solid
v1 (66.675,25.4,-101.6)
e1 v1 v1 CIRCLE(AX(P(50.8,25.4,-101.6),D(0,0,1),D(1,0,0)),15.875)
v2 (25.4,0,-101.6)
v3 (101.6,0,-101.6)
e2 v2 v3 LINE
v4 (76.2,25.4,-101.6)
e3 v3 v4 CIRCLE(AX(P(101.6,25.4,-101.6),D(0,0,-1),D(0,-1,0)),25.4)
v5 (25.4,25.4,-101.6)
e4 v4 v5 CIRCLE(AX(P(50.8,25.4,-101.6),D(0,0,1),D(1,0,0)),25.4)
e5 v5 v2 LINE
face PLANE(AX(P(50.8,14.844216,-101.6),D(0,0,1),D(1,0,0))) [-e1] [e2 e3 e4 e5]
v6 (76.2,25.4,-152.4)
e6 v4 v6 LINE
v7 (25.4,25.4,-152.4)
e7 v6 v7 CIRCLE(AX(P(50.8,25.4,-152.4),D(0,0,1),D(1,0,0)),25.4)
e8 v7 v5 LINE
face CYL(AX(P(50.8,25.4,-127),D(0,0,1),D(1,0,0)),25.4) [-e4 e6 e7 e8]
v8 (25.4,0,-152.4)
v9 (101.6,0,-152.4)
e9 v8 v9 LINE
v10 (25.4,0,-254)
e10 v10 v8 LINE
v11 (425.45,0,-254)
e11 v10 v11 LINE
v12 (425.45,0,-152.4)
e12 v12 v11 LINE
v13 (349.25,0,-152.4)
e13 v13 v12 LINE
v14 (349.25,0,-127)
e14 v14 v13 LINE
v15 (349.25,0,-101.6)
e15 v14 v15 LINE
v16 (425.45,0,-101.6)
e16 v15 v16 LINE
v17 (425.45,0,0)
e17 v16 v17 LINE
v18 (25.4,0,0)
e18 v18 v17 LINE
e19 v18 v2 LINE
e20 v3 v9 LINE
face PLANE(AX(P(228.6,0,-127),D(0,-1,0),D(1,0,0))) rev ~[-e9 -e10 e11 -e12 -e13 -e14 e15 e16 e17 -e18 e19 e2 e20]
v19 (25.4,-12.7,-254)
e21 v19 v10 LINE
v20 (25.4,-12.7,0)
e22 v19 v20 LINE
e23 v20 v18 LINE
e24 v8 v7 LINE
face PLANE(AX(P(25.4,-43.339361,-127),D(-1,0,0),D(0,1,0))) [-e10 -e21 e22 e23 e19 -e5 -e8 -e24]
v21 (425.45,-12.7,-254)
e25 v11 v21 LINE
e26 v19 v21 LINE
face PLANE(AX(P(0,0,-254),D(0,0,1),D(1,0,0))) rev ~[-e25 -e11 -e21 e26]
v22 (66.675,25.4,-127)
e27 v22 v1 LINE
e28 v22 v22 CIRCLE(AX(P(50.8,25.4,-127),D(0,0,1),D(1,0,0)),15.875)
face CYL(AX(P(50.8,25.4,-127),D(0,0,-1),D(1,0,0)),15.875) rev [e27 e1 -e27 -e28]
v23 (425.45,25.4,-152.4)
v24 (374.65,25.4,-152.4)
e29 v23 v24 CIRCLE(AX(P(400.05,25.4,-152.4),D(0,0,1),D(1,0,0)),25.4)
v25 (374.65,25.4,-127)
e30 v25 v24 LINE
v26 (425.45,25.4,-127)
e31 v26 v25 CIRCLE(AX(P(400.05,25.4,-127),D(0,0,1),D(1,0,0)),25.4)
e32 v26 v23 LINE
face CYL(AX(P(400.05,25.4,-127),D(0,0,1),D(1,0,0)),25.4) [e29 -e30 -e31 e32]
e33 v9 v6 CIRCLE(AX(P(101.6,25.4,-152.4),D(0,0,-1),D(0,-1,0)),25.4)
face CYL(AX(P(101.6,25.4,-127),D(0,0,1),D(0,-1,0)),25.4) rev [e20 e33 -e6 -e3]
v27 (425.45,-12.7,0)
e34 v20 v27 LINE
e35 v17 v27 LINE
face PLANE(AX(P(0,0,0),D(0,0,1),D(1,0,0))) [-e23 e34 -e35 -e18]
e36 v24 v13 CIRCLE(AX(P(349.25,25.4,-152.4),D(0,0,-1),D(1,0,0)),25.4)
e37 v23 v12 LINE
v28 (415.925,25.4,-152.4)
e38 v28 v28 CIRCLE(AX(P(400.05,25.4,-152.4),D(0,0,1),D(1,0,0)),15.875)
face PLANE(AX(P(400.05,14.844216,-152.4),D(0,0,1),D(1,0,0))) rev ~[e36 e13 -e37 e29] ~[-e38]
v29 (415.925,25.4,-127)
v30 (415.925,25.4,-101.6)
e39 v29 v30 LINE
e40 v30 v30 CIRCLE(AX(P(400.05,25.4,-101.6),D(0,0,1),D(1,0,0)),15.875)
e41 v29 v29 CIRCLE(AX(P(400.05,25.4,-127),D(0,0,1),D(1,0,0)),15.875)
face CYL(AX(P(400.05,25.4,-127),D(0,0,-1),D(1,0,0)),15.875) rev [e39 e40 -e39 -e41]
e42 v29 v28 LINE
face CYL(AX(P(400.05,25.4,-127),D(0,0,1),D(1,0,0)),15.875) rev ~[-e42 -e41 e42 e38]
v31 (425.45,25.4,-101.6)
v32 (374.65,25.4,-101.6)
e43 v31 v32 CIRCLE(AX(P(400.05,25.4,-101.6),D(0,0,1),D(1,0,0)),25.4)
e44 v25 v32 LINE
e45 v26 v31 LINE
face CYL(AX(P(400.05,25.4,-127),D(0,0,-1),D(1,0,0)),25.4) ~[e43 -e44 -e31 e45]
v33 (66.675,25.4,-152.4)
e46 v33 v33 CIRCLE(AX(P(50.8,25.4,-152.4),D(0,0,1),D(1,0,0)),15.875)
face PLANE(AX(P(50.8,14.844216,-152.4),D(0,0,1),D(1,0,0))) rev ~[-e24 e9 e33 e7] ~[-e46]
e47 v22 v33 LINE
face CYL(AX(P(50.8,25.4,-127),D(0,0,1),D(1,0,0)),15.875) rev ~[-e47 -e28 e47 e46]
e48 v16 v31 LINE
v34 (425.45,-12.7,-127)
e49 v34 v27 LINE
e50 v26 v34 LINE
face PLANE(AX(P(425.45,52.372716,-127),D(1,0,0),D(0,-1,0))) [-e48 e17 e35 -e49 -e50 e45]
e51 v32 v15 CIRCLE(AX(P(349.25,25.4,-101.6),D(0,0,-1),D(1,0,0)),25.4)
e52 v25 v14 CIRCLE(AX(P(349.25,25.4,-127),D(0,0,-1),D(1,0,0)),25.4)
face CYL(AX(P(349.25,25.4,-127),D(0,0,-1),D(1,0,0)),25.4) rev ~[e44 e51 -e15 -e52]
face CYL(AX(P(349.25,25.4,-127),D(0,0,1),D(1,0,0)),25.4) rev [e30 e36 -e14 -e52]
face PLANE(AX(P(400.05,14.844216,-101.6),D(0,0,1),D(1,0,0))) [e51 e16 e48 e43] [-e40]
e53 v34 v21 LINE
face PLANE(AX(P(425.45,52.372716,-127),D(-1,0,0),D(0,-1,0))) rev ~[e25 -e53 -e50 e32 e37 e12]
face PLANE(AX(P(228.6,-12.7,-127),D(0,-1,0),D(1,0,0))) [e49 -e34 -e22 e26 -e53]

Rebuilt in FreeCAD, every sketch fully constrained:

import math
import FreeCAD as App
import Part
import Sketcher
from FreeCAD import Vector
Q = App.Units.Quantity


def add_polygon(sketch, points):
    """Adds a closed chain of lines whose ends are joined by coincident constraints."""
    first, n = sketch.GeometryCount, len(points)
    for a, b in zip(points, points[1:] + points[:1]):
        sketch.addGeometry(Part.LineSegment(App.Vector(*a, 0), App.Vector(*b, 0)), False)
    for i in range(n):
        sketch.addConstraint(Sketcher.Constraint("Coincident", first + i, 2, first + (i + 1) % n, 1))

doc = App.newDocument("Part")
params = doc.addObject("Spreadsheet::Sheet", "Params")
for row, (alias, value) in enumerate([
    ("sketch1_width", "18 in"),
    ("sketch1_height", "10 in"),
    ("pad1_length", "0.5 in"),
    ("sketch2_radius", "1 in"),
    ("sketch2_diameter", "1.25 in"),
    ("pad2_length", "1 in"),
    ("pad2_length2", "1 in"),
], start=1):
    params.set(f"A{row}", alias)
    params.set(f"B{row}", "=" + value)
    params.setAlias(f"B{row}", alias)

body = doc.addObject("PartDesign::Body", "Body")

sketch1 = doc.addObject("Sketcher::SketchObject", "Sketch")
body.addObject(sketch1)
sketch1.AttachmentSupport = (doc.XZ_Plane, [""])
sketch1.MapMode = "FlatFace"
add_polygon(sketch1, [(0, 0), (0, -254), (457.2, -254), (457.2, 0)])
sketch1.addConstraint([
    Sketcher.Constraint("Vertical", 0),
    Sketcher.Constraint("Horizontal", 1),
    Sketcher.Constraint("Vertical", 2),
    Sketcher.Constraint("Horizontal", 3),
    Sketcher.Constraint("Coincident", 3, 2, -1, 1),
    Sketcher.Constraint("DistanceX", 1, 1, 1, 2, Q("18 in")),
    Sketcher.Constraint("DistanceY", 0, 2, 0, 1, Q("10 in")),
])
sketch1.setExpression("Constraints[9]", "Params.sketch1_width")
sketch1.setExpression("Constraints[10]", "Params.sketch1_height")
pad1 = doc.addObject("PartDesign::Pad", "Pad")
body.addObject(pad1)
pad1.Profile = sketch1
pad1.setExpression("Length", "Params.pad1_length")

sketch2 = doc.addObject("Sketcher::SketchObject", "Sketch001")
body.addObject(sketch2)
sketch2.AttachmentSupport = (doc.XY_Plane, [""])
sketch2.MapMode = "FlatFace"
sketch2.AttachmentOffset = App.Placement(Vector(0, 0, -5 * 25.4), App.Rotation())
sketch2.addGeometry([
    Part.ArcOfCircle(Part.Circle(Vector(0, 25.4, 0), Vector(0, 0, 1), 25.4), math.radians(-90), math.radians(0)),
    Part.LineSegment(Vector(0, 0, 0), Vector(101.6, 0, 0)),
    Part.ArcOfCircle(Part.Circle(Vector(101.6, 25.4, 0), Vector(0, 0, 1), 25.4), math.radians(180), math.radians(270)),
    Part.ArcOfCircle(Part.Circle(Vector(50.8, 25.4, 0), Vector(0, 0, 1), 25.4), math.radians(0), math.radians(180)),
    Part.Circle(Vector(50.8, 25.4, 0), Vector(0, 0, 1), 15.875),
    Part.ArcOfCircle(Part.Circle(Vector(450.85, 25.4, 0), Vector(0, 0, 1), 25.4), math.radians(180), math.radians(270)),
    Part.ArcOfCircle(Part.Circle(Vector(400.05, 25.4, 0), Vector(0, 0, 1), 25.4), math.radians(0), math.radians(180)),
    Part.ArcOfCircle(Part.Circle(Vector(349.25, 25.4, 0), Vector(0, 0, 1), 25.4), math.radians(-90), math.radians(0)),
    Part.LineSegment(Vector(349.25, 0, 0), Vector(450.85, 0, 0)),
    Part.Circle(Vector(400.05, 25.4, 0), Vector(0, 0, 1), 15.875),
], False)
sketch2.addConstraint([
    Sketcher.Constraint("Tangent", 0, 1, 1, 1),
    Sketcher.Constraint("Tangent", 1, 2, 2, 2),
    Sketcher.Constraint("Tangent", 2, 1, 3, 1),
    Sketcher.Constraint("Tangent", 3, 2, 0, 2),
    Sketcher.Constraint("Tangent", 5, 1, 6, 1),
    Sketcher.Constraint("Tangent", 6, 2, 7, 2),
    Sketcher.Constraint("Tangent", 7, 1, 8, 1),
    Sketcher.Constraint("Tangent", 8, 2, 5, 2),
    Sketcher.Constraint("Horizontal", 1),
    Sketcher.Constraint("Horizontal", 8),
    Sketcher.Constraint("Coincident", 0, 1, -1, 1),
    Sketcher.Constraint("Coincident", 4, 3, 3, 3),
    Sketcher.Constraint("Coincident", 9, 3, 6, 3),
    Sketcher.Constraint("Equal", 0, 2),
    Sketcher.Constraint("Equal", 2, 3),
    Sketcher.Constraint("Equal", 3, 5),
    Sketcher.Constraint("Equal", 5, 6),
    Sketcher.Constraint("Equal", 6, 7),
    Sketcher.Constraint("Equal", 4, 9),
    Sketcher.Constraint("PointOnObject", 7, 1, -1),
    Sketcher.Constraint("Horizontal", 2, 3, 3, 3),
    Sketcher.Constraint("Horizontal", 5, 3, 6, 3),
    Sketcher.Constraint("Radius", 0, Q("1 in")),
    Sketcher.Constraint("Diameter", 4, Q("1.25 in")),
    Sketcher.Constraint("DistanceX", -1, 1, 5, 3, Q("17.75 in")),
])
sketch2.setExpression("Constraints[22]", "Params.sketch2_radius")
sketch2.setExpression("Constraints[23]", "Params.sketch2_diameter")
pad2 = doc.addObject("PartDesign::Pad", "Pad001")
body.addObject(pad2)
pad2.Profile = sketch2
pad2.Type = "TwoLengths"
pad2.setExpression("Length", "Params.pad2_length")
pad2.setExpression("Length2", "Params.pad2_length2")

sketch3 = doc.addObject("Sketcher::SketchObject", "Sketch002")
body.addObject(sketch3)
sketch3.AttachmentSupport = (doc.XY_Plane, [""])
sketch3.MapMode = "FlatFace"
sketch3.AttachmentOffset = App.Placement(Vector(0, 0, -5 * 25.4), App.Rotation())
add_polygon(sketch3, [(25.4, -43.339361), (25.4, 52.372716), (-28.903352, 52.372716), (-28.903352, -43.339361)])
add_polygon(sketch3, [(425.45, 52.372716), (425.45, -43.339361), (479.753352, -43.339361), (479.753352, 52.372716)])
sketch3.addConstraint([
    Sketcher.Constraint("Vertical", 0),
    Sketcher.Constraint("Horizontal", 1),
    Sketcher.Constraint("Vertical", 2),
    Sketcher.Constraint("Horizontal", 3),
    Sketcher.Constraint("Vertical", 4),
    Sketcher.Constraint("Horizontal", 5),
    Sketcher.Constraint("Vertical", 6),
    Sketcher.Constraint("Horizontal", 7),
    Sketcher.Constraint("Horizontal", 3, 2, 4, 2),
    Sketcher.Constraint("Horizontal", 1, 2, 6, 2),
    Sketcher.Constraint("Equal", 3, 5),
    Sketcher.Constraint("DistanceX", -1, 1, 0, 2, Q("1 in")),
    Sketcher.Constraint("DistanceX", -1, 1, 4, 2, Q("16.75 in")),
    Sketcher.Constraint("DistanceX", 1, 2, 1, 1, Q("54.303352 mm")),
    Sketcher.Constraint("DistanceY", 0, 1, 0, 2, Q("95.712077 mm")),
    Sketcher.Constraint("DistanceY", 2, 2, -1, 1, Q("43.339361 mm")),
])
pocket1 = doc.addObject("PartDesign::Pocket", "Pocket")
body.addObject(pocket1)
pocket1.Profile = sketch3
pocket1.Type = "ThroughAll"
pocket1.Midplane = True

doc.recompute()
